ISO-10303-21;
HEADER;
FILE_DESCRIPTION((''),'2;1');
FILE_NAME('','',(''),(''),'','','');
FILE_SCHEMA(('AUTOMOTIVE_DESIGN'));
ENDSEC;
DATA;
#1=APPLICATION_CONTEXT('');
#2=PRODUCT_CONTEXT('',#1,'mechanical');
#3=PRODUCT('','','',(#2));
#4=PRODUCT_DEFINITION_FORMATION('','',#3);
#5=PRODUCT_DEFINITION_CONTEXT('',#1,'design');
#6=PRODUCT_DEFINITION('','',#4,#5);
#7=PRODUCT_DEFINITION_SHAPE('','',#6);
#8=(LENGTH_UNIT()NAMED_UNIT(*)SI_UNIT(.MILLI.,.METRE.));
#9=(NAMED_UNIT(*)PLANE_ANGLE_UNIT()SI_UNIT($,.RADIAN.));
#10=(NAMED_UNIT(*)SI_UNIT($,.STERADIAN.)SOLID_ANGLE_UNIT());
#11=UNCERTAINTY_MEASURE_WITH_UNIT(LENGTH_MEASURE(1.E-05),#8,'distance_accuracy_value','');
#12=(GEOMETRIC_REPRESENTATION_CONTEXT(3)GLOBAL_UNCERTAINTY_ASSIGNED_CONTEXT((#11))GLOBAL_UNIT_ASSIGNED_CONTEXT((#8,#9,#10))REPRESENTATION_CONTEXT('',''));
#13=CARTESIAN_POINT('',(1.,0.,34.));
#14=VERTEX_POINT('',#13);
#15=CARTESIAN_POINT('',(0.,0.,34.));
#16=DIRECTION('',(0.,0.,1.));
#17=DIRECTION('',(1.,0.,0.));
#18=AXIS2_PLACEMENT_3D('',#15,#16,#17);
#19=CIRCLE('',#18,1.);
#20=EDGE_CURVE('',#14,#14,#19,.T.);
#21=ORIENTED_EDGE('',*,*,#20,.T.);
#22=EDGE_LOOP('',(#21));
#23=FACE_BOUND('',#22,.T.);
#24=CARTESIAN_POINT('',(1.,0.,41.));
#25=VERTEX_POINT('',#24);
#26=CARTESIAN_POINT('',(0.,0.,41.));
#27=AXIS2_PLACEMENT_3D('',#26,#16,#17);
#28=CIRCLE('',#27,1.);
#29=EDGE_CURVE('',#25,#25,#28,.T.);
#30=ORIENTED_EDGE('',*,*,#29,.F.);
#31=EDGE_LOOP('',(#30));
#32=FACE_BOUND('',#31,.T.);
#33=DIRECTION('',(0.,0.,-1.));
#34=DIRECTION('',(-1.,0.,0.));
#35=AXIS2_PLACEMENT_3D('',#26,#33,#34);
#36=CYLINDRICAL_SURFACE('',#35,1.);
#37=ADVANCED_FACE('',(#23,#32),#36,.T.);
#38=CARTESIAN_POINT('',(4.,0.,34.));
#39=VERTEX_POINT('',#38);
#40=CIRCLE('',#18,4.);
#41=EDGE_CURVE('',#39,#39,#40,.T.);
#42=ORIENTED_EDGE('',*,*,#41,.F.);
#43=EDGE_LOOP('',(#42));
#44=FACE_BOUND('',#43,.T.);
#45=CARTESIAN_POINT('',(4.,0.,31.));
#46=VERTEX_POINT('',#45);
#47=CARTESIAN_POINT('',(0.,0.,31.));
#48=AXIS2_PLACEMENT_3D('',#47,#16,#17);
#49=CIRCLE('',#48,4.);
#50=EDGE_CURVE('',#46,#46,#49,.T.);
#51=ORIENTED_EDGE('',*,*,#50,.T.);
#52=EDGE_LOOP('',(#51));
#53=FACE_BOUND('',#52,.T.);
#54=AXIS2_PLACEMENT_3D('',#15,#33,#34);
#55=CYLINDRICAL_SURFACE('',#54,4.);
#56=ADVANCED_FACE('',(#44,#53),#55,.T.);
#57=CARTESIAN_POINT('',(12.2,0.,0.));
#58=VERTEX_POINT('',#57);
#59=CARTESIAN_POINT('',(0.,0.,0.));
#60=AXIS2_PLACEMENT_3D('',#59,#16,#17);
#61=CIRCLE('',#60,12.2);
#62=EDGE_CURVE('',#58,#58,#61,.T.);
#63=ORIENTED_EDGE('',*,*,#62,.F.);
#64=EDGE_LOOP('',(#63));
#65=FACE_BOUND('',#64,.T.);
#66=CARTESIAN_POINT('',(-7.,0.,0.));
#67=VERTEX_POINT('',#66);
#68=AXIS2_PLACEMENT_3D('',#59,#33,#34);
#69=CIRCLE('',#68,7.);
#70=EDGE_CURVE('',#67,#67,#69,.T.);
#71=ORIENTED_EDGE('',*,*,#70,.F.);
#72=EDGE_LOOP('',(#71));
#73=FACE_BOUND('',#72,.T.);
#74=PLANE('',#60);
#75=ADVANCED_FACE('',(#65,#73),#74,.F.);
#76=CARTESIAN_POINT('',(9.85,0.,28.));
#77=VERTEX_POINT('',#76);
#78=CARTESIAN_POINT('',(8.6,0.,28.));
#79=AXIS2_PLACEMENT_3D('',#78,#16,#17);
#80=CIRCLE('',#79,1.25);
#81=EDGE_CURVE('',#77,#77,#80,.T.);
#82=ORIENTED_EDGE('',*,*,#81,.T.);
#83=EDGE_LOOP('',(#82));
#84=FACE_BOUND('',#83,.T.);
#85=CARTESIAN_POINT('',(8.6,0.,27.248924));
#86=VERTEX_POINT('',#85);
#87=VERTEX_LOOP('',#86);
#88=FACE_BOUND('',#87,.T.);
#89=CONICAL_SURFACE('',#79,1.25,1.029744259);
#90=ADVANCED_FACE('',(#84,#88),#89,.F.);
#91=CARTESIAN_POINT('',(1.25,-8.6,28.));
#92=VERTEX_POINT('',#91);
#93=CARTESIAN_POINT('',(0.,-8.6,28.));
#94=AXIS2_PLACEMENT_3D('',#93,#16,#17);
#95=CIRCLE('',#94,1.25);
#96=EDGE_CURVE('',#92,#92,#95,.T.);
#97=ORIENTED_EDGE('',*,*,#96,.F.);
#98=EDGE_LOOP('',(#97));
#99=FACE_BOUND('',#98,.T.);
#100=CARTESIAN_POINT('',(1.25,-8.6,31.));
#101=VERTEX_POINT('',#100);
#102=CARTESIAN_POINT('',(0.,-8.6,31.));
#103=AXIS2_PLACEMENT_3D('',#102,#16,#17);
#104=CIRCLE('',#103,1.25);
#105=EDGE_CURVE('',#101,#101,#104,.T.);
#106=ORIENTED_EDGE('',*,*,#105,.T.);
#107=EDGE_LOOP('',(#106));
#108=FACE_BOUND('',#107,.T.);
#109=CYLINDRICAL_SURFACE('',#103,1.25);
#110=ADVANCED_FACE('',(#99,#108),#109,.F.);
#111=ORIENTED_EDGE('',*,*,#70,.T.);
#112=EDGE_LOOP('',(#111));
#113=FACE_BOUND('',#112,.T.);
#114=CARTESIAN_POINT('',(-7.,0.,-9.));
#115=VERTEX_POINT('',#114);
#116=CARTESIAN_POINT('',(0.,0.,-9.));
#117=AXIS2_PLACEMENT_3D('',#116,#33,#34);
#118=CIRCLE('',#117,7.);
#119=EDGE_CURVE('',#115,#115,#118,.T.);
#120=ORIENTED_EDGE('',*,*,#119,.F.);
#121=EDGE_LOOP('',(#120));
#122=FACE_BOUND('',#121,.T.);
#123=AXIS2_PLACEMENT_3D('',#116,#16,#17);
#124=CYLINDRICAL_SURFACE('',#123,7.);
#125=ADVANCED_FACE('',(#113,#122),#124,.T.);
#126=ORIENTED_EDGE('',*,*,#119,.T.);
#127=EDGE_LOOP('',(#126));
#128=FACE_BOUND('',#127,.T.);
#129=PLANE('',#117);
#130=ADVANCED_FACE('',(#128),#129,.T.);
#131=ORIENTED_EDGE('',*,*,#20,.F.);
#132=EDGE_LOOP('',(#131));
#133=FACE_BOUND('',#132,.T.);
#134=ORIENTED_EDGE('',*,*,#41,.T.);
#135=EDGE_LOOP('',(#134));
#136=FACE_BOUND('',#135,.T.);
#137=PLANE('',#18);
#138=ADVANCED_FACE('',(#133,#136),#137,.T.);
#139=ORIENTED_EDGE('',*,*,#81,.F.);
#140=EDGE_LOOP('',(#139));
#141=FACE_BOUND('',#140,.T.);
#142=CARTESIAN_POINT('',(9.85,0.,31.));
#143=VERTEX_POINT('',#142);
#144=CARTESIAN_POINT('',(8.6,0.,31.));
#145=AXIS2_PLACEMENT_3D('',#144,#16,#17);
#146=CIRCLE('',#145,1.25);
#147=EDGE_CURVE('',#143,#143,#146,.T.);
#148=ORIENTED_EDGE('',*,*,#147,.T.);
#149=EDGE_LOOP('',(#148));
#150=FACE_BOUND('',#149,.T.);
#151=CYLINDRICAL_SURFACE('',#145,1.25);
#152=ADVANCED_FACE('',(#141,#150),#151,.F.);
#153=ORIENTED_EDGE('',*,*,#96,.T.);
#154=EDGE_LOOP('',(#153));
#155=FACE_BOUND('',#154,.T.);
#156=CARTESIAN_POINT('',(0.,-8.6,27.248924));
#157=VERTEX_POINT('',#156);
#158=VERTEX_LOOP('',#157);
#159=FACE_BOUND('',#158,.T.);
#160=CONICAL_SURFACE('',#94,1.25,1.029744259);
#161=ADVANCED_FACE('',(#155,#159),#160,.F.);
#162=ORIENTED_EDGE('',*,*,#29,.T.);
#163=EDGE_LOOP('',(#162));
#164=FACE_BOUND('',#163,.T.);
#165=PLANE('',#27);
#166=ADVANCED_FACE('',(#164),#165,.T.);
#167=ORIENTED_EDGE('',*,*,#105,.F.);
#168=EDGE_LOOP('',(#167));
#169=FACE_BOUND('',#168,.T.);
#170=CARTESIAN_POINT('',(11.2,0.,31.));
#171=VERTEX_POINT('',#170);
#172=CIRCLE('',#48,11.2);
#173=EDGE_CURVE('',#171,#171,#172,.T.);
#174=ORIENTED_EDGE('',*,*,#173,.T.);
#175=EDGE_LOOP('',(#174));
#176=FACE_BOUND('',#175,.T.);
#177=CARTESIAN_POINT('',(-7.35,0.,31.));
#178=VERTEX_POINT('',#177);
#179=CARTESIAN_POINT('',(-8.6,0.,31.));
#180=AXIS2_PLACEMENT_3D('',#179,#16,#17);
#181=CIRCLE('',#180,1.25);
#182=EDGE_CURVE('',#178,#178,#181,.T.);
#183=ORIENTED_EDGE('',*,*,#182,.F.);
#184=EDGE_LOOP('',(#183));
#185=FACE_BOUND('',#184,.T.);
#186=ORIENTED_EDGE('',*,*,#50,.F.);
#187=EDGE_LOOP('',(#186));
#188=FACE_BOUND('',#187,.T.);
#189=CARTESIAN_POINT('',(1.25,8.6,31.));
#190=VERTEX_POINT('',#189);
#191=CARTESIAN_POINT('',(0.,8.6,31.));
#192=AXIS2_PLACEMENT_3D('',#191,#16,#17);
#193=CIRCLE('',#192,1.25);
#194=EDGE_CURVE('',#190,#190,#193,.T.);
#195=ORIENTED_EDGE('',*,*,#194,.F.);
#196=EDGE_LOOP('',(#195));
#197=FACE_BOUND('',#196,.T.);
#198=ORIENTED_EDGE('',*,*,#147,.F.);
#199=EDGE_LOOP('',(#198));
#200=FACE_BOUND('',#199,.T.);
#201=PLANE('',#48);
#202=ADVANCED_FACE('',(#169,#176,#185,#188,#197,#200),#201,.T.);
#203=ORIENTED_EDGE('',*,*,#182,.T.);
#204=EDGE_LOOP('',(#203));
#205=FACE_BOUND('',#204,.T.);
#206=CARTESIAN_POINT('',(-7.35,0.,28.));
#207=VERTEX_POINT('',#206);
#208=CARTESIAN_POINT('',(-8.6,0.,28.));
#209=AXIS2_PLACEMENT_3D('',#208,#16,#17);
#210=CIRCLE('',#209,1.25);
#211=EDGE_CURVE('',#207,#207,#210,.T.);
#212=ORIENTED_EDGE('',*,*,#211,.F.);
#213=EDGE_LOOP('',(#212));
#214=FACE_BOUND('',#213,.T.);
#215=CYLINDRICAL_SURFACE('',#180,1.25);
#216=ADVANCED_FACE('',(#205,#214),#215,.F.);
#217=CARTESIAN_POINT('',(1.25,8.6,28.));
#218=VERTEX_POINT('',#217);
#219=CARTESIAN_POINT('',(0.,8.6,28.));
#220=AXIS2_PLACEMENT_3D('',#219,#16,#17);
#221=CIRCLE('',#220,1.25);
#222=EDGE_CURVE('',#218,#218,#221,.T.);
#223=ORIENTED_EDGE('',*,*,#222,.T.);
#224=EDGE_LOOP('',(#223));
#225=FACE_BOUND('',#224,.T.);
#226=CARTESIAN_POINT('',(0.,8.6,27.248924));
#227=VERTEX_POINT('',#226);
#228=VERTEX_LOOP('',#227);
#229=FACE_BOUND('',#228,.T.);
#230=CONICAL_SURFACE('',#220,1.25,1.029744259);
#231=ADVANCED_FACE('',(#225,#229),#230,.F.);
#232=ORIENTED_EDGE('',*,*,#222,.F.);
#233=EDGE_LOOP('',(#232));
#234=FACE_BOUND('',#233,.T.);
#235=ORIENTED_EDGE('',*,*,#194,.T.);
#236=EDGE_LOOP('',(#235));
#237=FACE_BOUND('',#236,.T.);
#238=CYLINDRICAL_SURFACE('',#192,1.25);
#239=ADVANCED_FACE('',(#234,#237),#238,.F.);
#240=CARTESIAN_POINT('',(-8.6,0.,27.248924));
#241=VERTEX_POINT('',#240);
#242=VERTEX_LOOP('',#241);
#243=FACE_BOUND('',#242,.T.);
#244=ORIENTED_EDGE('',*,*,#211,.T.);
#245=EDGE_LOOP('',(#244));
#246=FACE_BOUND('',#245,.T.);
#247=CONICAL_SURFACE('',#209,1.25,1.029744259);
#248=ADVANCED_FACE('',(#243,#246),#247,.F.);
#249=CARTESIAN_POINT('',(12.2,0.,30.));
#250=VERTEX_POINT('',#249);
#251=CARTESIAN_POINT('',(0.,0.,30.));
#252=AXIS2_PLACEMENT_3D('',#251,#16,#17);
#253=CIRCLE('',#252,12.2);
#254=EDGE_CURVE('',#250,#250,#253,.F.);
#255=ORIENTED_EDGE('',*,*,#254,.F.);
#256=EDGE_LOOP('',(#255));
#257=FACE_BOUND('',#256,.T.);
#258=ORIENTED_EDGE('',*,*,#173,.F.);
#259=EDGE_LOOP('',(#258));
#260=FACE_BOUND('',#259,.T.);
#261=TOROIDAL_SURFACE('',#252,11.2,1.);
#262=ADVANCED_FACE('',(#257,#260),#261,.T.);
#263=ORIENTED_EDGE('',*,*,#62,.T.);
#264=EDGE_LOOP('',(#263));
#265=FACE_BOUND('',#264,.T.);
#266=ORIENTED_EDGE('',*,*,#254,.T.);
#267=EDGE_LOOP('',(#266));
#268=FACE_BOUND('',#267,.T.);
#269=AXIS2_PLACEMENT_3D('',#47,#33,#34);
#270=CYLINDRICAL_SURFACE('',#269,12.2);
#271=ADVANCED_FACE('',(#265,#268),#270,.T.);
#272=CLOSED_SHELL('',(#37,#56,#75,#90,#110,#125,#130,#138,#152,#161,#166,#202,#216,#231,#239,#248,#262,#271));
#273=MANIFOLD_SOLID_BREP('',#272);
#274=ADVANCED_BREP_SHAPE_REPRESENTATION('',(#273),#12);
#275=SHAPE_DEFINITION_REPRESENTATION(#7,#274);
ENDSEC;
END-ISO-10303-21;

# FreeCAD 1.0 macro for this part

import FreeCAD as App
import Part
import Sketcher


def edges_at(feature, points):
    """Names of the edges that pass closest to the given points."""
    edges = feature.Shape.Edges
    near = lambda p: min(range(len(edges)), key=lambda i: edges[i].distToShape(Part.Vertex(*p))[0])
    return sorted({f"Edge{near(p) + 1}" for p in points})

doc = App.newDocument("Part")
body = doc.addObject("PartDesign::Body", "Body")

# Sketch on XY plane
sketch1 = body.newObject("Sketcher::SketchObject", "Sketch")
sketch1.AttachmentSupport = (doc.getObject("XY_Plane"), [""])
sketch1.MapMode = "FlatFace"
sketch1.addGeometry(Part.Circle(App.Vector(0, 0, 0), App.Vector(0, 0, 1), 12), False)
sketch1.addConstraint([
    Sketcher.Constraint("Coincident", 0, 3, -1, 1),
    Sketcher.Constraint("Diameter", 0, 24.4),
])
pad1 = body.newObject("PartDesign::Pad", "Pad")
pad1.Profile = sketch1
pad1.Length = 31

# Sketch on XY plane
sketch2 = body.newObject("Sketcher::SketchObject", "Sketch001")
sketch2.AttachmentSupport = (doc.getObject("XY_Plane"), [""])
sketch2.MapMode = "FlatFace"
sketch2.AttachmentOffset = App.Placement(App.Vector(0, 0, 31), App.Rotation())
sketch2.addGeometry([
    Part.Circle(App.Vector(-8.6, 0, 0), App.Vector(0, 0, 1), 1.2),
    Part.Circle(App.Vector(0, 8.6, 0), App.Vector(0, 0, 1), 1.2),
    Part.Circle(App.Vector(8.6, 0, 0), App.Vector(0, 0, 1), 1.2),
    Part.Circle(App.Vector(0, -8.6, 0), App.Vector(0, 0, 1), 1.2),
], False)
sketch2.addConstraint([
    Sketcher.Constraint("Equal", 0, 1),
    Sketcher.Constraint("Equal", 1, 2),
    Sketcher.Constraint("Equal", 2, 3),
    Sketcher.Constraint("Symmetric", 0, 3, 2, 3, -1, 1),
    Sketcher.Constraint("Symmetric", 1, 3, 3, 3, -1, 1),
    Sketcher.Constraint("PointOnObject", 0, 3, -1),
    Sketcher.Constraint("PointOnObject", 1, 3, -2),
    Sketcher.Constraint("Diameter", 0, 2.5),
    Sketcher.Constraint("DistanceX", 0, 3, -1, 1, 8.6),
    Sketcher.Constraint("DistanceY", -1, 1, 1, 3, 8.6),
])
doc.recompute()
hole = body.newObject("PartDesign::Hole", "Hole")
hole.Profile = sketch2
hole.ThreadType = "None"
hole.Diameter = 2.5
hole.DepthType = "Dimension"
hole.Depth = 3
hole.DrillPoint = "Angled"
hole.DrillPointAngle = 118

# Sketch on XY plane
sketch3 = body.newObject("Sketcher::SketchObject", "Sketch002")
sketch3.AttachmentSupport = (doc.getObject("XY_Plane"), [""])
sketch3.MapMode = "FlatFace"
sketch3.AttachmentOffset = App.Placement(App.Vector(0, 0, 31), App.Rotation())
sketch3.addGeometry(Part.Circle(App.Vector(0, 0, 0), App.Vector(0, 0, 1), 4), False)
sketch3.addConstraint([
    Sketcher.Constraint("Coincident", 0, 3, -1, 1),
    Sketcher.Constraint("Diameter", 0, 8.0),
])
pad2 = body.newObject("PartDesign::Pad", "Pad001")
pad2.Profile = sketch3
pad2.Length = 3

# Sketch on XY plane
sketch4 = body.newObject("Sketcher::SketchObject", "Sketch003")
sketch4.AttachmentSupport = (doc.getObject("XY_Plane"), [""])
sketch4.MapMode = "FlatFace"
sketch4.AttachmentOffset = App.Placement(App.Vector(0, 0, 34), App.Rotation())
sketch4.addGeometry(Part.Circle(App.Vector(0, 0, 0), App.Vector(0, 0, 1), 1), False)
sketch4.addConstraint([
    Sketcher.Constraint("Coincident", 0, 3, -1, 1),
    Sketcher.Constraint("Diameter", 0, 2.0),
])
pad3 = body.newObject("PartDesign::Pad", "Pad002")
pad3.Profile = sketch4
pad3.Length = 7

# Sketch on XY plane
sketch5 = body.newObject("Sketcher::SketchObject", "Sketch004")
sketch5.AttachmentSupport = (doc.getObject("XY_Plane"), [""])
sketch5.MapMode = "FlatFace"
sketch5.addGeometry(Part.Circle(App.Vector(0, 0, 0), App.Vector(0, 0, 1), 7), False)
sketch5.addConstraint([
    Sketcher.Constraint("Coincident", 0, 3, -1, 1),
    Sketcher.Constraint("Diameter", 0, 14.0),
])
pad4 = body.newObject("PartDesign::Pad", "Pad003")
pad4.Profile = sketch5
pad4.Length = 9
pad4.Reversed = True
doc.recompute()

fillet = body.newObject("PartDesign::Fillet", "Fillet")
fillet.Base = (pad4, edges_at(pad4, [(-12.2, 0, 31)]))
fillet.Radius = 1

doc.recompute()
